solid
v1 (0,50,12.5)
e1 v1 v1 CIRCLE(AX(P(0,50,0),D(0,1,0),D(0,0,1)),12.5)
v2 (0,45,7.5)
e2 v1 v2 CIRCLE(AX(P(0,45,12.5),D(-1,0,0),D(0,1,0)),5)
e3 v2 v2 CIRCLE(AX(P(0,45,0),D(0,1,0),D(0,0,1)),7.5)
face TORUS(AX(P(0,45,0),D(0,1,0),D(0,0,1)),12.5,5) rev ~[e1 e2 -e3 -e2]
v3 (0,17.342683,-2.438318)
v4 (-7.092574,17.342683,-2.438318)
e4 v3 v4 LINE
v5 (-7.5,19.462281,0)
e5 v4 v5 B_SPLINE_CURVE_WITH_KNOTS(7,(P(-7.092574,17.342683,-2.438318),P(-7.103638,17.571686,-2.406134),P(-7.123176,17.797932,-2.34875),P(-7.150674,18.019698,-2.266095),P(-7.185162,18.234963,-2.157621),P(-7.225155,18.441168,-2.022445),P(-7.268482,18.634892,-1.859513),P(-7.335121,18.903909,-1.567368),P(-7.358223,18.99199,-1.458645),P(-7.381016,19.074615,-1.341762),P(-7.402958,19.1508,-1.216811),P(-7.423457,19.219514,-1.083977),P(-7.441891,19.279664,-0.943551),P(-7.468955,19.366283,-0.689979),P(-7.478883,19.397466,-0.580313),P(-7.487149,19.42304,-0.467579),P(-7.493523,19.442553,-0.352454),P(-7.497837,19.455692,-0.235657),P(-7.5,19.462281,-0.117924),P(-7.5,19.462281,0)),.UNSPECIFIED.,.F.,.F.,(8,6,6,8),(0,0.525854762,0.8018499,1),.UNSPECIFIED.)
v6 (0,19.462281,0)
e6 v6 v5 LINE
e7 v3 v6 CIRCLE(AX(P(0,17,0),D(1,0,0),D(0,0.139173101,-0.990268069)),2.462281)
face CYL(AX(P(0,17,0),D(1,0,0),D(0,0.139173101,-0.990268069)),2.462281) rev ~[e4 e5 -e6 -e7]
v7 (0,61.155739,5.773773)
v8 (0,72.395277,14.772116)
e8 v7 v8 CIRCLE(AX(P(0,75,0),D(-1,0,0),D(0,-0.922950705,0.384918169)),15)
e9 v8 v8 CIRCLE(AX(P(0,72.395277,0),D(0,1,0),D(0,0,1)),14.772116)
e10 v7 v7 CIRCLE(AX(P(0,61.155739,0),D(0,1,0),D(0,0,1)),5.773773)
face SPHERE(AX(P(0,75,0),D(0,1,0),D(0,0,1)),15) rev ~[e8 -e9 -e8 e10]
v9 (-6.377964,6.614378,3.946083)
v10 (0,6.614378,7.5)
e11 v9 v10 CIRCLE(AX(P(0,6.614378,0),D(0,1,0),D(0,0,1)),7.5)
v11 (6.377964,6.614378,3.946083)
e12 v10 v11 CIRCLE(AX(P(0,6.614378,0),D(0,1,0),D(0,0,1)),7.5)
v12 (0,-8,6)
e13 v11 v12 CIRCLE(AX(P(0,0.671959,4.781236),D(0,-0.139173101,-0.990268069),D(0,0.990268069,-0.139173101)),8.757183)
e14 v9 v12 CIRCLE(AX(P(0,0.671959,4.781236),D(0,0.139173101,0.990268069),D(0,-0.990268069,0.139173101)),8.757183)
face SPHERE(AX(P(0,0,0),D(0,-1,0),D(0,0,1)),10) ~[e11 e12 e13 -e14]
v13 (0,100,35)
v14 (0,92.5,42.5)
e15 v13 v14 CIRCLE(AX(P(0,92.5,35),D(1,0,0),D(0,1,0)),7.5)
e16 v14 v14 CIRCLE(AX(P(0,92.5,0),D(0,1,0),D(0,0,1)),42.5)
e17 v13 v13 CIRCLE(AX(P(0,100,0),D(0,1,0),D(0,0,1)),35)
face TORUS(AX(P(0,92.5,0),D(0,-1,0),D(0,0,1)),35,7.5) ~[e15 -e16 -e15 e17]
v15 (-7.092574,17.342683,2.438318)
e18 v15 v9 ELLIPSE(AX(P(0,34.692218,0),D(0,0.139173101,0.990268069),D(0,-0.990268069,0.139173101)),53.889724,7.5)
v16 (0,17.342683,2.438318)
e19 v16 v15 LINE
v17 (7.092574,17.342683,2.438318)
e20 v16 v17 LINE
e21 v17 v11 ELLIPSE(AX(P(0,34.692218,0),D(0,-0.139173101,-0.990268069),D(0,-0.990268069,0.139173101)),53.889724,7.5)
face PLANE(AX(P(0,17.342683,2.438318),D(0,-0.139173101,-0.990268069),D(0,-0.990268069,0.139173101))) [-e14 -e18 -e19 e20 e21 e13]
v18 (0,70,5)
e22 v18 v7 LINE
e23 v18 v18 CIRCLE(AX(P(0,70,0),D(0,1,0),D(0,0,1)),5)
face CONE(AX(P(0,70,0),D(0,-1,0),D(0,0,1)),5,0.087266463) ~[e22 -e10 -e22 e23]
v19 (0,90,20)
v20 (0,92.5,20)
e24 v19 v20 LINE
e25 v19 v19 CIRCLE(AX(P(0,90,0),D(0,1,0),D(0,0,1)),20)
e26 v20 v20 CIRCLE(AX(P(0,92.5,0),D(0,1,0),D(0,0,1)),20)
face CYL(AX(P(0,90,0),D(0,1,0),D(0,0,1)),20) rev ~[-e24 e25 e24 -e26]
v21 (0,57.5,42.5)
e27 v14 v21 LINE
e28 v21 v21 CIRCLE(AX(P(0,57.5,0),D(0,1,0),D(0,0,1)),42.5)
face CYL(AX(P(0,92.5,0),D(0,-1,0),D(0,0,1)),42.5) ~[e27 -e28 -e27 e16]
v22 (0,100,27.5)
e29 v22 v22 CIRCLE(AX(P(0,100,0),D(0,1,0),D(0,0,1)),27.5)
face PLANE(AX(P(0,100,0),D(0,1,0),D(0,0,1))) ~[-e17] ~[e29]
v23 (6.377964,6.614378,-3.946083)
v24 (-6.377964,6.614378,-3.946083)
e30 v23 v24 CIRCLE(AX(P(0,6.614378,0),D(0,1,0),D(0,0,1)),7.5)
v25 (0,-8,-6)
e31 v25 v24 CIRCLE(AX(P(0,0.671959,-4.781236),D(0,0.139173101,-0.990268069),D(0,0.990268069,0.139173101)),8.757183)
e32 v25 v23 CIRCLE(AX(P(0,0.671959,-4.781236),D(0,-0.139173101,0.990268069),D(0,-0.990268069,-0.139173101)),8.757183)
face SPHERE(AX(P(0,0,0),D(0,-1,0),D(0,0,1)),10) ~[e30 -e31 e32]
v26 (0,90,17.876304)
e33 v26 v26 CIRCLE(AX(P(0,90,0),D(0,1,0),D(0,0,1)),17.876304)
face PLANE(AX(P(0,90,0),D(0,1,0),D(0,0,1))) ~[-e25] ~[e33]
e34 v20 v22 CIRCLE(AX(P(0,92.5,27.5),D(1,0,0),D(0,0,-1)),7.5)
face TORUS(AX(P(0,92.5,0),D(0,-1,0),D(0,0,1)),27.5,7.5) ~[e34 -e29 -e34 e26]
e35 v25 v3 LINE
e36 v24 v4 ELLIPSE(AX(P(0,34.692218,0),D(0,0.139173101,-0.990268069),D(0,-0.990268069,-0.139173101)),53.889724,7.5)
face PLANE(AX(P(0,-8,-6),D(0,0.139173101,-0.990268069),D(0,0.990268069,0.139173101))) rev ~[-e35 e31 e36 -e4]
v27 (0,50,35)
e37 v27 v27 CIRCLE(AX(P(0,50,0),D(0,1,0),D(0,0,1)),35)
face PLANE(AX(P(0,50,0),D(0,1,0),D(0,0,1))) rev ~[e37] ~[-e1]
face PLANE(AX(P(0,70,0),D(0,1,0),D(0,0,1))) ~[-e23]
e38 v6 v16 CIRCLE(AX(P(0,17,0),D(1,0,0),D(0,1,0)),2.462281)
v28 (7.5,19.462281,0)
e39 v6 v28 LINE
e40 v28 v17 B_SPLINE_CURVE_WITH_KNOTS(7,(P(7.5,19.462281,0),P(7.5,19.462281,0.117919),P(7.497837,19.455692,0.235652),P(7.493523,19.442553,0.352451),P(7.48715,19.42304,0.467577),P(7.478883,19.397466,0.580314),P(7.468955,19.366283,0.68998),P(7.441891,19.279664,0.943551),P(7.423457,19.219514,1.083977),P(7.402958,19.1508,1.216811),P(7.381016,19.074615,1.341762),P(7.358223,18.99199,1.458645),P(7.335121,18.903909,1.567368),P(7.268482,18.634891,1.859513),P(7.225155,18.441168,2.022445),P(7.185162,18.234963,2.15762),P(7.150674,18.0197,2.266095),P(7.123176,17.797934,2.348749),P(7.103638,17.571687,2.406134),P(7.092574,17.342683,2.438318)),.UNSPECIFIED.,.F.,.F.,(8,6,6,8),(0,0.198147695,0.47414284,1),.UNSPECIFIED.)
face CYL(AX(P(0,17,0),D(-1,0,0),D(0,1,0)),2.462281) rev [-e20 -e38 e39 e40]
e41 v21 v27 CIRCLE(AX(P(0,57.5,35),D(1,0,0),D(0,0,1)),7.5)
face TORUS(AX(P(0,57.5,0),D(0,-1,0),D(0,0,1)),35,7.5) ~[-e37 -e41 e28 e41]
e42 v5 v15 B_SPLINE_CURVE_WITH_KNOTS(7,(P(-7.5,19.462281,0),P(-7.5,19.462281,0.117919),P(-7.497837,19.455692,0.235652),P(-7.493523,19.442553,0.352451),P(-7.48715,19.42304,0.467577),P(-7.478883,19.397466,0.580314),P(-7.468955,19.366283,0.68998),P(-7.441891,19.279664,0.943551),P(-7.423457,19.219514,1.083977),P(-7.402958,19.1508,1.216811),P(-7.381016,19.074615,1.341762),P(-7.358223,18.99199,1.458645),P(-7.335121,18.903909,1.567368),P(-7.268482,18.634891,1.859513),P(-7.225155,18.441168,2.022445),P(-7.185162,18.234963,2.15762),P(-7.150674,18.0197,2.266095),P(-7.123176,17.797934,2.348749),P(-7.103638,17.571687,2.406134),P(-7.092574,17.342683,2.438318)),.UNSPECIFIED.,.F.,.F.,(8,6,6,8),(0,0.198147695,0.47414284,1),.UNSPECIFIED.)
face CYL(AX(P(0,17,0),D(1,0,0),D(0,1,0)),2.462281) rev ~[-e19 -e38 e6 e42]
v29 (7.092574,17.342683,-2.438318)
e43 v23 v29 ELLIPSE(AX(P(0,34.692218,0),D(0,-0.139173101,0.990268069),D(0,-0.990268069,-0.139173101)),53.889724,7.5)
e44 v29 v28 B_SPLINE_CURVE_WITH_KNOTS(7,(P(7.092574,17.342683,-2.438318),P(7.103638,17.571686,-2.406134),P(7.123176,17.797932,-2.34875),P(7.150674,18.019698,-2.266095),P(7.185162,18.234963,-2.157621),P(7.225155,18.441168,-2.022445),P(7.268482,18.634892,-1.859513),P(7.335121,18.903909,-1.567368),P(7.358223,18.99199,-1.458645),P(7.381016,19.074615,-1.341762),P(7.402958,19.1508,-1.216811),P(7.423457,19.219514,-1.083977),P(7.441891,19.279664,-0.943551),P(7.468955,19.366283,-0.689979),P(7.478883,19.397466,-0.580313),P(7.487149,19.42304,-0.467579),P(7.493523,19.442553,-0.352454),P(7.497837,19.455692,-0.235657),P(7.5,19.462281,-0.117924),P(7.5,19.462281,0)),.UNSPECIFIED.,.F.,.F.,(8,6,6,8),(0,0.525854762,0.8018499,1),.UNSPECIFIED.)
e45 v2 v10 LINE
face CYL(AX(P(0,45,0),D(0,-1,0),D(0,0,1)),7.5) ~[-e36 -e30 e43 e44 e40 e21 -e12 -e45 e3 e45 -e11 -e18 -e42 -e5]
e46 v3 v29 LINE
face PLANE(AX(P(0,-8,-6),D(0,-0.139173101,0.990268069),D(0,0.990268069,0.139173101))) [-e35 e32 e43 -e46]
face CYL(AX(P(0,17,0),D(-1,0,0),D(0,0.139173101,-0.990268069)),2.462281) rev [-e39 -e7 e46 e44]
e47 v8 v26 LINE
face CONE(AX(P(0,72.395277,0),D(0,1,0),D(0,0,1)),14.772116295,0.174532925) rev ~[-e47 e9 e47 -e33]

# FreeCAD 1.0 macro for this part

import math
import FreeCAD as App
import Part
import Sketcher
Q = App.Units.Quantity

doc = App.newDocument("Part")
body = doc.addObject("PartDesign::Body", "Body")

sketch1 = body.newObject("Sketcher::SketchObject", "Sketch")
sketch1.AttachmentSupport = (doc.getObject("YZ_Plane"), [""])
sketch1.MapMode = "FlatFace"
sketch1.addGeometry(Part.LineSegment(App.Vector(45, 7.5, 0), App.Vector(6.6, 7.5, 0)), False)
sketch1.addGeometry(Part.ArcOfCircle(Part.Circle(App.Vector(0, 0, 0), App.Vector(0, 0, 1), 10), math.radians(49), math.radians(180)), False)
sketch1.addGeometry(Part.LineSegment(App.Vector(-10, 0, 0), App.Vector(70, 0, 0)), False)
sketch1.addGeometry(Part.LineSegment(App.Vector(70, 0, 0), App.Vector(70, 5, 0)), False)
sketch1.addGeometry(Part.LineSegment(App.Vector(70, 5, 0), App.Vector(61.2, 5.8, 0)), False)
sketch1.addGeometry(Part.ArcOfCircle(Part.Circle(App.Vector(75, 0, 0), App.Vector(0, 0, 1), 15), math.radians(100), math.radians(157)), False)
sketch1.addGeometry(Part.LineSegment(App.Vector(72.4, 14.8, 0), App.Vector(90, 17.9, 0)), False)
sketch1.addGeometry(Part.LineSegment(App.Vector(90, 17.9, 0), App.Vector(90, 20, 0)), False)
sketch1.addGeometry(Part.LineSegment(App.Vector(90, 20, 0), App.Vector(92.5, 20, 0)), False)
sketch1.addGeometry(Part.ArcOfCircle(Part.Circle(App.Vector(92.5, 27.5, 0), App.Vector(0, 0, 1), 7.5), math.radians(-90), math.radians(0)), False)
sketch1.addGeometry(Part.LineSegment(App.Vector(100, 27.5, 0), App.Vector(100, 35, 0)), False)
sketch1.addGeometry(Part.ArcOfCircle(Part.Circle(App.Vector(92.5, 35, 0), App.Vector(0, 0, 1), 7.5), math.radians(0), math.radians(90)), False)
sketch1.addGeometry(Part.LineSegment(App.Vector(92.5, 42.5, 0), App.Vector(57.5, 42.5, 0)), False)
sketch1.addGeometry(Part.ArcOfCircle(Part.Circle(App.Vector(57.5, 35, 0), App.Vector(0, 0, 1), 7.5), math.radians(90), math.radians(180)), False)
sketch1.addGeometry(Part.LineSegment(App.Vector(50, 35, 0), App.Vector(50, 12.5, 0)), False)
sketch1.addGeometry(Part.ArcOfCircle(Part.Circle(App.Vector(45, 12.5, 0), App.Vector(0, 0, 1), 5), math.radians(-90), math.radians(0)), False)
sketch1.addConstraint(Sketcher.Constraint("Coincident", 0, 2, 1, 1))
sketch1.addConstraint(Sketcher.Constraint("Coincident", 1, 2, 2, 1))
sketch1.addConstraint(Sketcher.Constraint("Coincident", 2, 2, 3, 1))
sketch1.addConstraint(Sketcher.Constraint("Coincident", 3, 2, 4, 1))
sketch1.addConstraint(Sketcher.Constraint("Coincident", 4, 2, 5, 2))
sketch1.addConstraint(Sketcher.Constraint("Tangent", 5, 1, 6, 1))
sketch1.addConstraint(Sketcher.Constraint("Coincident", 6, 2, 7, 1))
sketch1.addConstraint(Sketcher.Constraint("Coincident", 7, 2, 8, 1))
sketch1.addConstraint(Sketcher.Constraint("Tangent", 8, 2, 9, 1))
sketch1.addConstraint(Sketcher.Constraint("Tangent", 9, 2, 10, 1))
sketch1.addConstraint(Sketcher.Constraint("Tangent", 10, 2, 11, 1))
sketch1.addConstraint(Sketcher.Constraint("Tangent", 11, 2, 12, 1))
sketch1.addConstraint(Sketcher.Constraint("Tangent", 12, 2, 13, 1))
sketch1.addConstraint(Sketcher.Constraint("Tangent", 13, 2, 14, 1))
sketch1.addConstraint(Sketcher.Constraint("Tangent", 14, 2, 15, 2))
sketch1.addConstraint(Sketcher.Constraint("Tangent", 15, 1, 0, 1))
sketch1.addConstraint(Sketcher.Constraint("Horizontal", 0))
sketch1.addConstraint(Sketcher.Constraint("Horizontal", 2))
sketch1.addConstraint(Sketcher.Constraint("Vertical", 3))
sketch1.addConstraint(Sketcher.Constraint("Vertical", 7))
sketch1.addConstraint(Sketcher.Constraint("Horizontal", 8))
sketch1.addConstraint(Sketcher.Constraint("Vertical", 10))
sketch1.addConstraint(Sketcher.Constraint("Horizontal", 12))
sketch1.addConstraint(Sketcher.Constraint("Vertical", 14))
sketch1.addConstraint(Sketcher.Constraint("Coincident", 1, 3, -1, 1))
sketch1.addConstraint(Sketcher.Constraint("Equal", 9, 11))
sketch1.addConstraint(Sketcher.Constraint("Equal", 11, 13))
sketch1.addConstraint(Sketcher.Constraint("PointOnObject", 5, 3, -1))
sketch1.addConstraint(Sketcher.Constraint("PointOnObject", 1, 2, -1))
sketch1.addConstraint(Sketcher.Constraint("Radius", 1, 10.0))
sketch1.addConstraint(Sketcher.Constraint("Radius", 5, 15.0))
sketch1.addConstraint(Sketcher.Constraint("Radius", 15, 5.0))
sketch1.addConstraint(Sketcher.Constraint("Radius", 9, 7.5))
sketch1.addConstraint(Sketcher.Constraint("DistanceX", 2, 1, 2, 2, 80.0))
sketch1.addConstraint(Sketcher.Constraint("DistanceX", 12, 2, 12, 1, 35.0))
sketch1.addConstraint(Sketcher.Constraint("DistanceY", 3, 1, 3, 2, 5.0))
sketch1.addConstraint(Sketcher.Constraint("Angle", 4, Q("175 deg")))
sketch1.addConstraint(Sketcher.Constraint("Angle", 6, Q("10 deg")))
sketch1.addConstraint(Sketcher.Constraint("DistanceX", 8, 1, 8, 2, 2.5))
sketch1.addConstraint(Sketcher.Constraint("DistanceY", 10, 1, 10, 2, 7.5))
sketch1.addConstraint(Sketcher.Constraint("DistanceY", 14, 2, 14, 1, 22.5))
sketch1.addConstraint(Sketcher.Constraint("DistanceX", -1, 1, 5, 3, 75.0))
sketch1.addConstraint(Sketcher.Constraint("DistanceY", -1, 1, 11, 3, 35.0))
sketch1.addConstraint(Sketcher.Constraint("DistanceX", -1, 1, 15, 3, 45.0))
revolution = body.newObject("PartDesign::Revolution", "Revolution")
revolution.Profile = sketch1
revolution.ReferenceAxis = (sketch1, ["H_Axis"])
revolution.Angle = 360

sketch2 = body.newObject("Sketcher::SketchObject", "Sketch001")
sketch2.AttachmentSupport = (doc.getObject("YZ_Plane"), [""])
sketch2.MapMode = "FlatFace"
sketch2.addGeometry(Part.LineSegment(App.Vector(17.3, 2.4, 0), App.Vector(-8, 6, 0)), False)
sketch2.addGeometry(Part.ArcOfCircle(Part.Circle(App.Vector(0, 0, 0), App.Vector(0, 0, 1), 10), math.radians(143), math.radians(217)), False)
sketch2.addGeometry(Part.LineSegment(App.Vector(-8, -6, 0), App.Vector(17.3, -2.4, 0)), False)
sketch2.addGeometry(Part.ArcOfCircle(Part.Circle(App.Vector(17, 0, 0), App.Vector(0, 0, 1), 2.5), math.radians(-82), math.radians(0)), False)
sketch2.addGeometry(Part.ArcOfCircle(Part.Circle(App.Vector(17, 0, 0), App.Vector(0, 0, 1), 2.5), math.radians(0), math.radians(82)), False)
sketch2.addConstraint(Sketcher.Constraint("Coincident", 0, 2, 1, 1))
sketch2.addConstraint(Sketcher.Constraint("Coincident", 1, 2, 2, 1))
sketch2.addConstraint(Sketcher.Constraint("Tangent", 2, 2, 3, 1))
sketch2.addConstraint(Sketcher.Constraint("Tangent", 3, 2, 4, 1))
sketch2.addConstraint(Sketcher.Constraint("Tangent", 4, 2, 0, 1))
sketch2.addConstraint(Sketcher.Constraint("Coincident", 1, 3, -1, 1))
sketch2.addConstraint(Sketcher.Constraint("Equal", 3, 4))
sketch2.addConstraint(Sketcher.Constraint("Symmetric", 2, 2, 4, 2, -1))
sketch2.addConstraint(Sketcher.Constraint("PointOnObject", 3, 2, -1))
sketch2.addConstraint(Sketcher.Constraint("Radius", 1, 10.0))
sketch2.addConstraint(Sketcher.Constraint("Angle", 0, Q("172 deg")))
sketch2.addConstraint(Sketcher.Constraint("DistanceX", -1, 1, 3, 3, 17.0))
sketch2.addConstraint(Sketcher.Constraint("DistanceX", 0, 2, -1, 1, 8.0))
pocket1 = body.newObject("PartDesign::Pocket", "Pocket")
pocket1.Profile = sketch2
pocket1.Type = "ThroughAll"
pocket1.Midplane = True

doc.recompute()
